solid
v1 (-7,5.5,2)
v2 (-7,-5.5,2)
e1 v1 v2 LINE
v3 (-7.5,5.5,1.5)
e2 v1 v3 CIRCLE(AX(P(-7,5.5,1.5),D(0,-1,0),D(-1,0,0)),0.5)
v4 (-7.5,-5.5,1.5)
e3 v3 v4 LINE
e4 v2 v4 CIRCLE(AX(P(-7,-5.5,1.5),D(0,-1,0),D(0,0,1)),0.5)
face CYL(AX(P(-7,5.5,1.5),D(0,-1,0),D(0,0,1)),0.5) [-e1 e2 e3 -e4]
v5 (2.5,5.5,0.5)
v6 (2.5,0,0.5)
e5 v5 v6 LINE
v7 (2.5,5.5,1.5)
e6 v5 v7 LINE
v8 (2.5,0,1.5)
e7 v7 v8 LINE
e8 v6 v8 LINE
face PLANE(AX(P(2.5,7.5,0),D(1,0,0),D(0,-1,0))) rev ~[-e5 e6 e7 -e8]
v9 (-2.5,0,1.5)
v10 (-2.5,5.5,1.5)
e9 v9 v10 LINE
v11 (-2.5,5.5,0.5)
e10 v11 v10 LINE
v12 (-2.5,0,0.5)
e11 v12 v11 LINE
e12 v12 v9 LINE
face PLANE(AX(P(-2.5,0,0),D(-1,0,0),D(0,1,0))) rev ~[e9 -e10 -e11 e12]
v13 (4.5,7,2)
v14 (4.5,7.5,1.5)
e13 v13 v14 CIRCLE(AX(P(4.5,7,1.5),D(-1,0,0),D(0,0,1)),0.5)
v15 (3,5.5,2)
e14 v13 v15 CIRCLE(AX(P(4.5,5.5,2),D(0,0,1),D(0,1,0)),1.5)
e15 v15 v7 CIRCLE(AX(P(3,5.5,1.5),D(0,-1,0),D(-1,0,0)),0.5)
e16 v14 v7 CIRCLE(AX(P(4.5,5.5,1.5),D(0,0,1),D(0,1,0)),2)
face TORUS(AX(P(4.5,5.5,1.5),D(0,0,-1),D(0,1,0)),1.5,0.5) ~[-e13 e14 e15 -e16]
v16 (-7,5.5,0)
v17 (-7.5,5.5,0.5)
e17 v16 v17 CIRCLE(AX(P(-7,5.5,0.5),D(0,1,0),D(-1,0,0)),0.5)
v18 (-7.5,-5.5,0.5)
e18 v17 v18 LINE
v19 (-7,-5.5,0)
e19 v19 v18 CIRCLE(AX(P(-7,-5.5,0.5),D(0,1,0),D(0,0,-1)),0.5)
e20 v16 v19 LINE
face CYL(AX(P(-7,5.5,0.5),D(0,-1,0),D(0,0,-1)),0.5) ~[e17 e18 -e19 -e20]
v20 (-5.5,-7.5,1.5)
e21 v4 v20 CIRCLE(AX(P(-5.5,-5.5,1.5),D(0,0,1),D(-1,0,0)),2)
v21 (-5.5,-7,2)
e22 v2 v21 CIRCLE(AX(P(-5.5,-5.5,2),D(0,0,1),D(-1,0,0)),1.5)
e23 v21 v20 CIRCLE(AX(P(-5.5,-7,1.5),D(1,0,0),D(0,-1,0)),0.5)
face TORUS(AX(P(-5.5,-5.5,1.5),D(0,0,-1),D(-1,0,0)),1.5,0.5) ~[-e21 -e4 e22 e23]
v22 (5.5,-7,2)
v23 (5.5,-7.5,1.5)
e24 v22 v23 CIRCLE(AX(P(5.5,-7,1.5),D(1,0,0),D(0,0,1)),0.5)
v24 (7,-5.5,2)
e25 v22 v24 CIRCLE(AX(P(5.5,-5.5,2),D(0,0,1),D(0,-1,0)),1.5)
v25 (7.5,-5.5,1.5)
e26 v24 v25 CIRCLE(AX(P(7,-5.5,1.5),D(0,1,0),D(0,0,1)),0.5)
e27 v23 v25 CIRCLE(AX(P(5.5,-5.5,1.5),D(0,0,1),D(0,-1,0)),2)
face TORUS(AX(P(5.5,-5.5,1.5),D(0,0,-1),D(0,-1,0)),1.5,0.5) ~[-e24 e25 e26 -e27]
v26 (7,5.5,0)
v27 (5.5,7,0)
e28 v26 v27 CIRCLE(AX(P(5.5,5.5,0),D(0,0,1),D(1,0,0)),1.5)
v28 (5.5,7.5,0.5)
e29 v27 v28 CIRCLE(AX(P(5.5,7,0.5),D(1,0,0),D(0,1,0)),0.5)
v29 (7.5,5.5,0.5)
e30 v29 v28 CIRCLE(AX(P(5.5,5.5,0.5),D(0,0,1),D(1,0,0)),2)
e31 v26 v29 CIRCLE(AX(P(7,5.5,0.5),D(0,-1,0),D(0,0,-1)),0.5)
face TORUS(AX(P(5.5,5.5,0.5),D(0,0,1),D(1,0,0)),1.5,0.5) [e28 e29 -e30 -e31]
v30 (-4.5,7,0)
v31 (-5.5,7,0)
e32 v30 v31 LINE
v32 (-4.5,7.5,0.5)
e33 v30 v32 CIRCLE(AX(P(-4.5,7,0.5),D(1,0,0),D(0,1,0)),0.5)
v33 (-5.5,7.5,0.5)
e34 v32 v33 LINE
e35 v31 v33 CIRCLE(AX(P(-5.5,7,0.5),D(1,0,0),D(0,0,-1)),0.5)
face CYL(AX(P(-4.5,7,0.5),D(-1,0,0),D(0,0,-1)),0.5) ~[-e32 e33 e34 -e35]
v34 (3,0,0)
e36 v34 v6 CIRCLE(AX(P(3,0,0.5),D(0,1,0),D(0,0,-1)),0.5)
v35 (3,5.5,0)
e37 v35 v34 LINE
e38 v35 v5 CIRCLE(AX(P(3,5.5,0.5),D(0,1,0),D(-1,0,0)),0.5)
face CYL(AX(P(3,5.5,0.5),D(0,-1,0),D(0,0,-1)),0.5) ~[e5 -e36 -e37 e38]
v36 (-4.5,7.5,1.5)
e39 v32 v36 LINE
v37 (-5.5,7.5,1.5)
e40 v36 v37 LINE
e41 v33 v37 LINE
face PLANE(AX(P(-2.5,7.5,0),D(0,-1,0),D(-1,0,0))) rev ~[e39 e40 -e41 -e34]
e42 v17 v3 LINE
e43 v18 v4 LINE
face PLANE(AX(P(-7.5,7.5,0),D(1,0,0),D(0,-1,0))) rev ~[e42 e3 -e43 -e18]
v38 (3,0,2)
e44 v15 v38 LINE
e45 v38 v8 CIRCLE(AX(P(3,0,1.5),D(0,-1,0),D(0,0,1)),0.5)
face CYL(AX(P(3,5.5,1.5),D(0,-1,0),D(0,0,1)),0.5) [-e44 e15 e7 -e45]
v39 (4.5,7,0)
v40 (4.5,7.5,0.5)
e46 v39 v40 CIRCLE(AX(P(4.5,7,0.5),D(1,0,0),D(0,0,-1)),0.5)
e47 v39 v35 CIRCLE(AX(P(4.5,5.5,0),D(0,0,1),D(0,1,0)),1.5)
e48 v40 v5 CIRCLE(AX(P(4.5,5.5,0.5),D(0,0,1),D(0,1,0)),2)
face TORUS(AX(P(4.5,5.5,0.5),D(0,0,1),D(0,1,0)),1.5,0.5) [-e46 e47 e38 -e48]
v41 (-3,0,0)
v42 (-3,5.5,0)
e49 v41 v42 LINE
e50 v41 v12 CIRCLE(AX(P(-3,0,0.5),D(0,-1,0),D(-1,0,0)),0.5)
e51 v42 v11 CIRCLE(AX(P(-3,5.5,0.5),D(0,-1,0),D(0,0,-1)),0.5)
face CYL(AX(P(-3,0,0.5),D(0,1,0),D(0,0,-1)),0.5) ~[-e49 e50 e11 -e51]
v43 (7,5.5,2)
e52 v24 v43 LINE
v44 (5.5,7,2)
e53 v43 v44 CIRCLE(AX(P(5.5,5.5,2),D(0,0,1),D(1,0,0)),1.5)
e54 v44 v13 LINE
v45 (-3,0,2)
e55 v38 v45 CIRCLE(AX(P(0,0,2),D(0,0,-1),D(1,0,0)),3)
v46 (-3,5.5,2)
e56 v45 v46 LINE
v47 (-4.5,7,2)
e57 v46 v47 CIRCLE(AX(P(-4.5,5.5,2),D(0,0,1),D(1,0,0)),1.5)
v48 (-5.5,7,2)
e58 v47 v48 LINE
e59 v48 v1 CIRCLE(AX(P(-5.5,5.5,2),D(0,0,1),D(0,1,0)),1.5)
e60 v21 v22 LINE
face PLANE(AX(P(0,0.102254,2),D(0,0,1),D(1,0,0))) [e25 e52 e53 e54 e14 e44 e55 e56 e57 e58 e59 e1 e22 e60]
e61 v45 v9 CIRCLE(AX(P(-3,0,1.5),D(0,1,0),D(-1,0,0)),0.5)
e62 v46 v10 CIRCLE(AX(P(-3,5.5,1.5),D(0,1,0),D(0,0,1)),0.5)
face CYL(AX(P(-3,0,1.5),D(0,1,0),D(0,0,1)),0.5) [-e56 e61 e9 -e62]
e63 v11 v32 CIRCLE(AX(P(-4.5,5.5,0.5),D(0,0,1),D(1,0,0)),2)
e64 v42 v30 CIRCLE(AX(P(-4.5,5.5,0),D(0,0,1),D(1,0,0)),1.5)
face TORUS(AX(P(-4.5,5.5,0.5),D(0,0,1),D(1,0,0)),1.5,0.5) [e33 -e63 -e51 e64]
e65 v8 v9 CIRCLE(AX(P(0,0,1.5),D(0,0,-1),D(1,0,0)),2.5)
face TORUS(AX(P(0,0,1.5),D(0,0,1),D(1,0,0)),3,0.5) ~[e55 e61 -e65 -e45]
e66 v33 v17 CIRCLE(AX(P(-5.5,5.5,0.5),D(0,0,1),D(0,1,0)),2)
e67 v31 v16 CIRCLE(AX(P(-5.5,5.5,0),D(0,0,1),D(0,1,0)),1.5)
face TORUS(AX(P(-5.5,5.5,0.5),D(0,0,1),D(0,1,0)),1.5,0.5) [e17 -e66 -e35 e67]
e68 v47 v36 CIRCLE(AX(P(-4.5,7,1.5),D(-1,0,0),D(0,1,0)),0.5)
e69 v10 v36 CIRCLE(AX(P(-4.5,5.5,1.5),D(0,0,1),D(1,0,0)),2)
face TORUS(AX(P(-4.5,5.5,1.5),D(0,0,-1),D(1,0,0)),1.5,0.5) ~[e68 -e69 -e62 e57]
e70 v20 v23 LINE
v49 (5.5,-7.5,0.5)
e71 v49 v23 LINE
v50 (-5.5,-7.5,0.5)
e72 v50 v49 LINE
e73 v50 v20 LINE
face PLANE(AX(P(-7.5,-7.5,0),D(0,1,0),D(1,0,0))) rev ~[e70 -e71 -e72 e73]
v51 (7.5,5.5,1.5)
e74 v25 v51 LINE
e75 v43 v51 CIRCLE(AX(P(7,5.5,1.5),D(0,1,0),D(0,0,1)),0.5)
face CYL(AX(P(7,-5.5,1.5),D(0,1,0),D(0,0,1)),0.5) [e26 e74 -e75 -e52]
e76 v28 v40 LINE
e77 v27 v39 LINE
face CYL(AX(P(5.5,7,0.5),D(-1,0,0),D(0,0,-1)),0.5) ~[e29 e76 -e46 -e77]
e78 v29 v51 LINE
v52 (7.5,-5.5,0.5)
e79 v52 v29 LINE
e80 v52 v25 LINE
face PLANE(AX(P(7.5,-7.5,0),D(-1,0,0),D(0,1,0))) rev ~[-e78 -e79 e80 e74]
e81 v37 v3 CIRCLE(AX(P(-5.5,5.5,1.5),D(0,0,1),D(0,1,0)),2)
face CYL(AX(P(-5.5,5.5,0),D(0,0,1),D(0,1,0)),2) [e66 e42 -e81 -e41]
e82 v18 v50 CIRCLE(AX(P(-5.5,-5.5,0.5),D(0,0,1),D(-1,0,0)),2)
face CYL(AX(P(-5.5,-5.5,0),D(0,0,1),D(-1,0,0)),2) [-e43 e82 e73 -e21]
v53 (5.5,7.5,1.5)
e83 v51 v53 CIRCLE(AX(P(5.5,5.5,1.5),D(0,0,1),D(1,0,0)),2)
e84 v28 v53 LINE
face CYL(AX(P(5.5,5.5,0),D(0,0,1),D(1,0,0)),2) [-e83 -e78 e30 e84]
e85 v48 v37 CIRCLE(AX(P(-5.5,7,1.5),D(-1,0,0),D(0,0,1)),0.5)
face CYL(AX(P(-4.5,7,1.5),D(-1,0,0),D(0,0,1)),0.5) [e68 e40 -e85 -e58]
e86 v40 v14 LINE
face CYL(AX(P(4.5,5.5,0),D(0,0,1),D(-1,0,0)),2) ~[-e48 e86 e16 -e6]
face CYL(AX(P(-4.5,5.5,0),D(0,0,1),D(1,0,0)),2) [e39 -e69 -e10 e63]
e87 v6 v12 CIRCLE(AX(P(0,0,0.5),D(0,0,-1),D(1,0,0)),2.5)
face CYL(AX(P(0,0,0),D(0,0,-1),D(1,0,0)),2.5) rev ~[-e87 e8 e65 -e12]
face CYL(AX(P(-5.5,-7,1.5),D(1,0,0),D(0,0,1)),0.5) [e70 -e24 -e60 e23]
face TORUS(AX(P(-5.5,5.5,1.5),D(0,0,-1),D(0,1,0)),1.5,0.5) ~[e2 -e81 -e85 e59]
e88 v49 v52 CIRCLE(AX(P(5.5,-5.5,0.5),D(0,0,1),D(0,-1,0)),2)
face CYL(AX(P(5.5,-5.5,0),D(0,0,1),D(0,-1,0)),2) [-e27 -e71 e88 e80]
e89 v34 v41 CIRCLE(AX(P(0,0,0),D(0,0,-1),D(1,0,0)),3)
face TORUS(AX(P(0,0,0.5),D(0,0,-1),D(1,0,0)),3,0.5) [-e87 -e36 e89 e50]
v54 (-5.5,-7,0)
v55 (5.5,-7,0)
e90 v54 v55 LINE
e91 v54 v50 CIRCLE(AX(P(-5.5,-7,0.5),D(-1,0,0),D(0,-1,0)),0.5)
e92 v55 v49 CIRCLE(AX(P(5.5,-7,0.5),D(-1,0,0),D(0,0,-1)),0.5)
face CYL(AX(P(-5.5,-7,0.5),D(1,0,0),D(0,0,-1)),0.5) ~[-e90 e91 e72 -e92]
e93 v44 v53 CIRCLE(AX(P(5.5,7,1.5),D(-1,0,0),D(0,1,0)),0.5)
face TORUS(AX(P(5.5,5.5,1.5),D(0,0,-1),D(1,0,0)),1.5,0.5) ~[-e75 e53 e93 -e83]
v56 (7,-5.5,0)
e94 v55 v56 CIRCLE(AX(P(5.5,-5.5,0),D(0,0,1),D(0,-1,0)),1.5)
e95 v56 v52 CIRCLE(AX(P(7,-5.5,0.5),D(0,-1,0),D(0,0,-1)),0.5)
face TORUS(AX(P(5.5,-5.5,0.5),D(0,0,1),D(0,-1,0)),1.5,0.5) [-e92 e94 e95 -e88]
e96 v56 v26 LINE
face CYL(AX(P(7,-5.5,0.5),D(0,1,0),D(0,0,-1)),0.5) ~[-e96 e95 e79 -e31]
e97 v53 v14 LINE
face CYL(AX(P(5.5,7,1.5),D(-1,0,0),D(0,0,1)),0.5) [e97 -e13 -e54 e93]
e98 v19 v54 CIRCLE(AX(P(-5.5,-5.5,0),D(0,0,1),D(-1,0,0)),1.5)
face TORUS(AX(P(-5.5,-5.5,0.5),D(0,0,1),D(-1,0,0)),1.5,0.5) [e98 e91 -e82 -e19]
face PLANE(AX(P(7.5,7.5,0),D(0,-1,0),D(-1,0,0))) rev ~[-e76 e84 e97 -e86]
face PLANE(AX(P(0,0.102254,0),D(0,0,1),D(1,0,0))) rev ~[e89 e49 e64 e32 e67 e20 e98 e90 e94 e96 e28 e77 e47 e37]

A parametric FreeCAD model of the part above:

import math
import FreeCAD as App
import Part
import Sketcher


def edges_at(feature, points):
    """Names of the edges that pass closest to the given points."""
    edges = feature.Shape.Edges
    near = lambda p: min(range(len(edges)), key=lambda i: edges[i].distToShape(Part.Vertex(*p))[0])
    return sorted({f"Edge{near(p) + 1}" for p in points})

doc = App.newDocument("Part")
body = doc.addObject("PartDesign::Body", "Body")

# Sketch on XY plane
sketch1 = body.newObject("Sketcher::SketchObject", "Sketch")
sketch1.AttachmentSupport = (doc.getObject("XY_Plane"), [""])
sketch1.MapMode = "FlatFace"
sketch1.addGeometry([
    Part.LineSegment(App.Vector(2.5, 7.5, 0), App.Vector(2.5, 0, 0)),  # 0
    Part.ArcOfCircle(Part.Circle(App.Vector(0, 0, 0), App.Vector(0, 0, 1), 2.5), math.radians(180), math.radians(360)),  # 1
    Part.LineSegment(App.Vector(-2.5, 0, 0), App.Vector(-2.5, 7.5, 0)),  # 2
    Part.LineSegment(App.Vector(-2.5, 7.5, 0), App.Vector(-7.5, 7.5, 0)),  # 3
    Part.LineSegment(App.Vector(-7.5, 7.5, 0), App.Vector(-7.5, -7.5, 0)),  # 4
    Part.LineSegment(App.Vector(-7.5, -7.5, 0), App.Vector(7.5, -7.5, 0)),  # 5
    Part.LineSegment(App.Vector(7.5, -7.5, 0), App.Vector(7.5, 7.5, 0)),  # 6
    Part.LineSegment(App.Vector(7.5, 7.5, 0), App.Vector(2.5, 7.5, 0)),  # 7
], False)
sketch1.addConstraint([
    Sketcher.Constraint("Tangent", 0, 2, 1, 2),
    Sketcher.Constraint("Tangent", 1, 1, 2, 1),
    Sketcher.Constraint("Coincident", 2, 2, 3, 1),
    Sketcher.Constraint("Coincident", 3, 2, 4, 1),
    Sketcher.Constraint("Coincident", 4, 2, 5, 1),
    Sketcher.Constraint("Coincident", 5, 2, 6, 1),
    Sketcher.Constraint("Coincident", 6, 2, 7, 1),
    Sketcher.Constraint("Coincident", 7, 2, 0, 1),
    Sketcher.Constraint("Vertical", 0),
    Sketcher.Constraint("Vertical", 2),
    Sketcher.Constraint("Horizontal", 3),
    Sketcher.Constraint("Vertical", 4),
    Sketcher.Constraint("Horizontal", 5),
    Sketcher.Constraint("Vertical", 6),
    Sketcher.Constraint("Horizontal", 7),
    Sketcher.Constraint("Coincident", 1, 3, -1, 1),
    Sketcher.Constraint("Symmetric", 3, 2, 5, 2, -1, 1),
    Sketcher.Constraint("Horizontal", 3, 2, 6, 2),
    Sketcher.Constraint("Equal", 5, 4),
    Sketcher.Constraint("Radius", 1, 2.5),
    Sketcher.Constraint("DistanceX", 3, 2, 3, 1, 5.0),
])
pad1 = body.newObject("PartDesign::Pad", "Pad")
pad1.Profile = sketch1
pad1.Length = 2
doc.recompute()

fillet = body.newObject("PartDesign::Fillet", "Fillet")
fillet.Base = (pad1, edges_at(pad1, [
    (7.5, -7.5, 1),
    (-7.5, -7.5, 1),
    (7.5, 7.5, 1),
    (2.5, 7.5, 1),
    (-2.5, 7.5, 1),
    (-7.5, 7.5, 1),
]))
fillet.Radius = 2
doc.recompute()

fillet2 = body.newObject("PartDesign::Fillet", "Fillet001")
fillet2.Base = (fillet, edges_at(fillet, [
    (7.5, 0, 2),
    (6.914, -6.914, 2),
    (6.914, 6.914, 2),
    (0, -7.5, 2),
    (5, 7.5, 2),
    (-6.914, -6.914, 2),
    (3.086, 6.914, 2),
    (-7.5, 0, 2),
    (2.5, 2.75, 2),
    (-6.914, 6.914, 2),
    (0, -2.5, 2),
    (-5, 7.5, 2),
    (-2.5, 2.75, 2),
    (-3.086, 6.914, 2),
    (7.5, 0, 0),
    (6.914, -6.914, 0),
    (6.914, 6.914, 0),
    (0, -7.5, 0),
    (5, 7.5, 0),
    (-6.914, -6.914, 0),
    (3.086, 6.914, 0),
    (-7.5, 0, 0),
    (2.5, 2.75, 0),
    (-6.914, 6.914, 0),
    (0, -2.5, 0),
    (-5, 7.5, 0),
    (-2.5, 2.75, 0),
    (-3.086, 6.914, 0),
]))
fillet2.Radius = 0.5

doc.recompute()
